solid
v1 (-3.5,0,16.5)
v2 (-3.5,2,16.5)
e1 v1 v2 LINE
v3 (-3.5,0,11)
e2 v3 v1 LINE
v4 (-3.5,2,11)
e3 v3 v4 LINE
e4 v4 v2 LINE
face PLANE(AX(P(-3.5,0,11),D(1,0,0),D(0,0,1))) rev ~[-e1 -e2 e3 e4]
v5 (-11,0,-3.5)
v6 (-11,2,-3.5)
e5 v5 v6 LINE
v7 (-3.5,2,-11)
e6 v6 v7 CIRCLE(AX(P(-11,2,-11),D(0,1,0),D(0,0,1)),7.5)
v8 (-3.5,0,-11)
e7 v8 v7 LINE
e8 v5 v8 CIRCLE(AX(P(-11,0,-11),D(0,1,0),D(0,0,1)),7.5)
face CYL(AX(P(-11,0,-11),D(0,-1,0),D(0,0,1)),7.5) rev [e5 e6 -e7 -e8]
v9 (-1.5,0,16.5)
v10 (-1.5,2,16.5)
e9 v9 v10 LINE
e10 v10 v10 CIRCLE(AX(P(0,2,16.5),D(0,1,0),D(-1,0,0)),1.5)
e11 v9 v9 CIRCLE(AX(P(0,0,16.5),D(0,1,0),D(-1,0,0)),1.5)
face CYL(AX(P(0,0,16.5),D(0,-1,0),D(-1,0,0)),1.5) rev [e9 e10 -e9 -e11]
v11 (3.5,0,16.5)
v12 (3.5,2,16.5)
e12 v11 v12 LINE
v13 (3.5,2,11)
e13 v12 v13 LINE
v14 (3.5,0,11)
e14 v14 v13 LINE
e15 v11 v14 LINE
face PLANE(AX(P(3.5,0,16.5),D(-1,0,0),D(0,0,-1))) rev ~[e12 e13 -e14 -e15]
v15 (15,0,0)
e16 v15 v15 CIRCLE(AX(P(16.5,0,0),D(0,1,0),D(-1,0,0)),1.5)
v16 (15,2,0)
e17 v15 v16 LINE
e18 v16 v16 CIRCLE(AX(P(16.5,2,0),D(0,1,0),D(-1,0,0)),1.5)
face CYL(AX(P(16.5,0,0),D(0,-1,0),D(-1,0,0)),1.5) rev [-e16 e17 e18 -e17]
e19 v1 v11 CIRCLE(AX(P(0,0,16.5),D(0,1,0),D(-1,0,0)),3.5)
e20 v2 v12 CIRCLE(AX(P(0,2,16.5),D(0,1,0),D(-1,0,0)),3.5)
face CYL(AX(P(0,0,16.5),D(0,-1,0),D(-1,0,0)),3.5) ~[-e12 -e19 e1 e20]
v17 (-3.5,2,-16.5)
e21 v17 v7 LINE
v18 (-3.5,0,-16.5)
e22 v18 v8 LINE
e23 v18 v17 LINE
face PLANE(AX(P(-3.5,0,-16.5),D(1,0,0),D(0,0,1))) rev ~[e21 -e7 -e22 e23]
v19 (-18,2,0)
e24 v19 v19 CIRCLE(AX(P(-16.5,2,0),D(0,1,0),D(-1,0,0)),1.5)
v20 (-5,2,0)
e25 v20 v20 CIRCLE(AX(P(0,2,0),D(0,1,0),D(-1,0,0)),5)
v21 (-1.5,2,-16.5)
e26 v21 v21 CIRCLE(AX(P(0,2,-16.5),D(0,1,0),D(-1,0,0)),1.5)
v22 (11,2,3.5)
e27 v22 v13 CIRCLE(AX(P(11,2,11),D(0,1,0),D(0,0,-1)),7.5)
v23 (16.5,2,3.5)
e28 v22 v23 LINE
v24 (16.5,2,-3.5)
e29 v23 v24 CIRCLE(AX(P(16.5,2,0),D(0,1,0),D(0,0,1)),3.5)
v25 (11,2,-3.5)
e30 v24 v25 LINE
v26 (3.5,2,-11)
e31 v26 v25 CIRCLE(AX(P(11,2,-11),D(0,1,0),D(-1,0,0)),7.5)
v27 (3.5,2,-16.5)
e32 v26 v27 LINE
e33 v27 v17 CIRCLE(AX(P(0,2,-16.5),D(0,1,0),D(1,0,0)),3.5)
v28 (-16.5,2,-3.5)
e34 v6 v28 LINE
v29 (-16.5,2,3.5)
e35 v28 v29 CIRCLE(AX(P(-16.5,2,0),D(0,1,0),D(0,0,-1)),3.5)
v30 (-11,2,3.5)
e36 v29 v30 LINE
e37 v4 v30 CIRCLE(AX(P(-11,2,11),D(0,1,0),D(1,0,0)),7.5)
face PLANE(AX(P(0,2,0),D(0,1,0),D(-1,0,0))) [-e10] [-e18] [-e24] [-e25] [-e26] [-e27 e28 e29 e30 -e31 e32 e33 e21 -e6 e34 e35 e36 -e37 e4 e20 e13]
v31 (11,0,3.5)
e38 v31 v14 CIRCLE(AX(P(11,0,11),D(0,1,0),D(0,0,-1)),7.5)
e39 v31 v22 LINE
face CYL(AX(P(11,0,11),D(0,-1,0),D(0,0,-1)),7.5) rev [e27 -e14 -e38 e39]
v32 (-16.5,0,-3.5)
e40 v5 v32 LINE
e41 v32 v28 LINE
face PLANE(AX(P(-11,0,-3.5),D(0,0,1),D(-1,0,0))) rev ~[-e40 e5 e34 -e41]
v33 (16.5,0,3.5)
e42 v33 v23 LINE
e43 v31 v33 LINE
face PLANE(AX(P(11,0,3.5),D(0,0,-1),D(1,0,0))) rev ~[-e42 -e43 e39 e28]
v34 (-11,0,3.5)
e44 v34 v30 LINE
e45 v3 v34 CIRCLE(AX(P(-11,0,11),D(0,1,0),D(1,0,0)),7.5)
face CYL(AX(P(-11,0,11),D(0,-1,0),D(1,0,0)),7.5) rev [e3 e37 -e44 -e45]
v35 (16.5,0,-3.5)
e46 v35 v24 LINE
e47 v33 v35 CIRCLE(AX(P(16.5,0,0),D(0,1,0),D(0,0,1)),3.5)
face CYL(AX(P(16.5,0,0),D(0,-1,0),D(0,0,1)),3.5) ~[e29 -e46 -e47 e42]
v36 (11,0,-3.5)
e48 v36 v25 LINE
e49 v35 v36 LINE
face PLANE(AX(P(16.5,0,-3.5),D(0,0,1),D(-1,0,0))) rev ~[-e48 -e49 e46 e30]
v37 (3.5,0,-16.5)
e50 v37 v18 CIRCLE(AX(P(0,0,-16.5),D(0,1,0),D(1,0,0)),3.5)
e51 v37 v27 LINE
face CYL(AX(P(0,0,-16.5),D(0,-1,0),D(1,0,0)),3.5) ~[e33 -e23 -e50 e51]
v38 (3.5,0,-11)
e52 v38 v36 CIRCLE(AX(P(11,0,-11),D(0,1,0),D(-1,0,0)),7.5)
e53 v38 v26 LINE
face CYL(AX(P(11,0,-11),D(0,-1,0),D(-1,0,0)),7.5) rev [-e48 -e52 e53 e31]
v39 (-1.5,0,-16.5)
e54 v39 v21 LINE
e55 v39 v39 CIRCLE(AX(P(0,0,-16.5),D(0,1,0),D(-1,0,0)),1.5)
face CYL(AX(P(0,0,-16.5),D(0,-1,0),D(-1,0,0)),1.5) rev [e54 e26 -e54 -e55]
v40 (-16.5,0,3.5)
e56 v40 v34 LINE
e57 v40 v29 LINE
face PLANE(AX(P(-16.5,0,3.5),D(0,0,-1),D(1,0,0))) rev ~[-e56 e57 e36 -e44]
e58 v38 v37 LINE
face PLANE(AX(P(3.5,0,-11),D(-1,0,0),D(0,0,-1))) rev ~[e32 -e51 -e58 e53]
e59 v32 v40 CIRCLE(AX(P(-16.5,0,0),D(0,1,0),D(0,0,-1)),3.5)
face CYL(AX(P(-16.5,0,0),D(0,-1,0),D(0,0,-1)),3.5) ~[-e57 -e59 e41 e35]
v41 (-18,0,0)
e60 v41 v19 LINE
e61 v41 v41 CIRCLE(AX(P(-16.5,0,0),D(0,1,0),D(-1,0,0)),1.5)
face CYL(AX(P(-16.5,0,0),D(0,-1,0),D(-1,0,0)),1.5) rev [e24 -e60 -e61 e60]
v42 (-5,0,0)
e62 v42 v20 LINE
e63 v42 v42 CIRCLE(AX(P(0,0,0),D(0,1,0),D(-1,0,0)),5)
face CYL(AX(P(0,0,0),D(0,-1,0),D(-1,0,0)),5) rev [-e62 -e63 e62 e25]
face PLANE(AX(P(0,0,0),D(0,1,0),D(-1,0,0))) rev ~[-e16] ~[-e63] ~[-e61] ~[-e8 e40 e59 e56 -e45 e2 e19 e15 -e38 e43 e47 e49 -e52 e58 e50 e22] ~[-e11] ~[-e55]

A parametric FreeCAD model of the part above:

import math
import FreeCAD as App
import Part
import Sketcher

V = App.Vector

doc = App.newDocument("Part")
body = doc.addObject("PartDesign::Body", "Body")

sketch1 = body.newObject("Sketcher::SketchObject", "Sketch")
sketch1.AttachmentSupport = (doc.getObject("XZ_Plane"), [""])
sketch1.MapMode = "FlatFace"
sketch1.addGeometry(Part.ArcOfCircle(Part.Circle(V(-11, 11, 0), V(0, 0, 1), 7.5), math.radians(-90), math.radians(0)), False)
sketch1.addGeometry(Part.LineSegment(V(-3.5, 11, 0), V(-3.5, 16.5, 0)), False)
sketch1.addGeometry(Part.ArcOfCircle(Part.Circle(V(0, 16.5, 0), V(0, 0, 1), 3.5), math.radians(0), math.radians(180)), False)
sketch1.addGeometry(Part.LineSegment(V(3.5, 16.5, 0), V(3.5, 11, 0)), False)
sketch1.addGeometry(Part.ArcOfCircle(Part.Circle(V(11, 11, 0), V(0, 0, 1), 7.5), math.radians(180), math.radians(270)), False)
sketch1.addGeometry(Part.LineSegment(V(11, 3.5, 0), V(16.5, 3.5, 0)), False)
sketch1.addGeometry(Part.ArcOfCircle(Part.Circle(V(16.5, 0, 0), V(0, 0, 1), 3.5), math.radians(-90), math.radians(90)), False)
sketch1.addGeometry(Part.LineSegment(V(16.5, -3.5, 0), V(11, -3.5, 0)), False)
sketch1.addGeometry(Part.ArcOfCircle(Part.Circle(V(11, -11, 0), V(0, 0, 1), 7.5), math.radians(90), math.radians(180)), False)
sketch1.addGeometry(Part.LineSegment(V(3.5, -11, 0), V(3.5, -16.5, 0)), False)
sketch1.addGeometry(Part.ArcOfCircle(Part.Circle(V(0, -16.5, 0), V(0, 0, 1), 3.5), math.radians(180), math.radians(360)), False)
sketch1.addGeometry(Part.LineSegment(V(-3.5, -16.5, 0), V(-3.5, -11, 0)), False)
sketch1.addGeometry(Part.ArcOfCircle(Part.Circle(V(-11, -11, 0), V(0, 0, 1), 7.5), math.radians(0), math.radians(90)), False)
sketch1.addGeometry(Part.LineSegment(V(-11, -3.5, 0), V(-16.5, -3.5, 0)), False)
sketch1.addGeometry(Part.ArcOfCircle(Part.Circle(V(-16.5, 0, 0), V(0, 0, 1), 3.5), math.radians(90), math.radians(270)), False)
sketch1.addGeometry(Part.LineSegment(V(-16.5, 3.5, 0), V(-11, 3.5, 0)), False)
sketch1.addGeometry(Part.Circle(V(0, -16.5, 0), V(0, 0, 1), 1.5), False)
sketch1.addGeometry(Part.Circle(V(16.5, 0, 0), V(0, 0, 1), 1.5), False)
sketch1.addGeometry(Part.Circle(V(0, 0, 0), V(0, 0, 1), 5), False)
sketch1.addGeometry(Part.Circle(V(-16.5, 0, 0), V(0, 0, 1), 1.5), False)
sketch1.addGeometry(Part.Circle(V(0, 16.5, 0), V(0, 0, 1), 1.5), False)
sketch1.addConstraint(Sketcher.Constraint("Tangent", 0, 2, 1, 1))
sketch1.addConstraint(Sketcher.Constraint("Tangent", 1, 2, 2, 2))
sketch1.addConstraint(Sketcher.Constraint("Tangent", 2, 1, 3, 1))
sketch1.addConstraint(Sketcher.Constraint("Tangent", 3, 2, 4, 1))
sketch1.addConstraint(Sketcher.Constraint("Tangent", 4, 2, 5, 1))
sketch1.addConstraint(Sketcher.Constraint("Tangent", 5, 2, 6, 2))
sketch1.addConstraint(Sketcher.Constraint("Tangent", 6, 1, 7, 1))
sketch1.addConstraint(Sketcher.Constraint("Tangent", 7, 2, 8, 1))
sketch1.addConstraint(Sketcher.Constraint("Tangent", 8, 2, 9, 1))
sketch1.addConstraint(Sketcher.Constraint("Tangent", 9, 2, 10, 2))
sketch1.addConstraint(Sketcher.Constraint("Tangent", 10, 1, 11, 1))
sketch1.addConstraint(Sketcher.Constraint("Tangent", 11, 2, 12, 1))
sketch1.addConstraint(Sketcher.Constraint("Tangent", 12, 2, 13, 1))
sketch1.addConstraint(Sketcher.Constraint("Tangent", 13, 2, 14, 2))
sketch1.addConstraint(Sketcher.Constraint("Tangent", 14, 1, 15, 1))
sketch1.addConstraint(Sketcher.Constraint("Tangent", 15, 2, 0, 1))
sketch1.addConstraint(Sketcher.Constraint("Vertical", 1))
sketch1.addConstraint(Sketcher.Constraint("Vertical", 3))
sketch1.addConstraint(Sketcher.Constraint("Horizontal", 5))
sketch1.addConstraint(Sketcher.Constraint("Horizontal", 7))
sketch1.addConstraint(Sketcher.Constraint("Vertical", 9))
sketch1.addConstraint(Sketcher.Constraint("Vertical", 11))
sketch1.addConstraint(Sketcher.Constraint("Horizontal", 13))
sketch1.addConstraint(Sketcher.Constraint("Horizontal", 15))
sketch1.addConstraint(Sketcher.Constraint("Coincident", 18, 3, -1, 1))
sketch1.addConstraint(Sketcher.Constraint("Coincident", 16, 3, 10, 3))
sketch1.addConstraint(Sketcher.Constraint("Coincident", 17, 3, 6, 3))
sketch1.addConstraint(Sketcher.Constraint("Coincident", 19, 3, 14, 3))
sketch1.addConstraint(Sketcher.Constraint("Coincident", 20, 3, 2, 3))
sketch1.addConstraint(Sketcher.Constraint("Equal", 0, 4))
sketch1.addConstraint(Sketcher.Constraint("Equal", 2, 6))
sketch1.addConstraint(Sketcher.Constraint("Equal", 4, 8))
sketch1.addConstraint(Sketcher.Constraint("Equal", 6, 10))
sketch1.addConstraint(Sketcher.Constraint("Equal", 8, 12))
sketch1.addConstraint(Sketcher.Constraint("Equal", 10, 14))
sketch1.addConstraint(Sketcher.Constraint("Equal", 16, 17))
sketch1.addConstraint(Sketcher.Constraint("Equal", 17, 19))
sketch1.addConstraint(Sketcher.Constraint("Equal", 19, 20))
sketch1.addConstraint(Sketcher.Constraint("Symmetric", 0, 3, 8, 3, -1, 1))
sketch1.addConstraint(Sketcher.Constraint("Symmetric", 0, 3, 4, 3, -2))
sketch1.addConstraint(Sketcher.Constraint("Equal", 7, 13))
sketch1.addConstraint(Sketcher.Constraint("Equal", 15, 1))
sketch1.addConstraint(Sketcher.Constraint("Equal", 3, 9))
sketch1.addConstraint(Sketcher.Constraint("Diameter", 18, 10.0))
sketch1.addConstraint(Sketcher.Constraint("Radius", 0, 7.5))
sketch1.addConstraint(Sketcher.Constraint("Diameter", 16, 3.0))
sketch1.addConstraint(Sketcher.Constraint("Radius", 2, 3.5))
sketch1.addConstraint(Sketcher.Constraint("DistanceX", 5, 1, 5, 2, 5.5))
pad1 = body.newObject("PartDesign::Pad", "Pad")
pad1.Profile = sketch1
pad1.Length = 2
pad1.Reversed = True

doc.recompute()
